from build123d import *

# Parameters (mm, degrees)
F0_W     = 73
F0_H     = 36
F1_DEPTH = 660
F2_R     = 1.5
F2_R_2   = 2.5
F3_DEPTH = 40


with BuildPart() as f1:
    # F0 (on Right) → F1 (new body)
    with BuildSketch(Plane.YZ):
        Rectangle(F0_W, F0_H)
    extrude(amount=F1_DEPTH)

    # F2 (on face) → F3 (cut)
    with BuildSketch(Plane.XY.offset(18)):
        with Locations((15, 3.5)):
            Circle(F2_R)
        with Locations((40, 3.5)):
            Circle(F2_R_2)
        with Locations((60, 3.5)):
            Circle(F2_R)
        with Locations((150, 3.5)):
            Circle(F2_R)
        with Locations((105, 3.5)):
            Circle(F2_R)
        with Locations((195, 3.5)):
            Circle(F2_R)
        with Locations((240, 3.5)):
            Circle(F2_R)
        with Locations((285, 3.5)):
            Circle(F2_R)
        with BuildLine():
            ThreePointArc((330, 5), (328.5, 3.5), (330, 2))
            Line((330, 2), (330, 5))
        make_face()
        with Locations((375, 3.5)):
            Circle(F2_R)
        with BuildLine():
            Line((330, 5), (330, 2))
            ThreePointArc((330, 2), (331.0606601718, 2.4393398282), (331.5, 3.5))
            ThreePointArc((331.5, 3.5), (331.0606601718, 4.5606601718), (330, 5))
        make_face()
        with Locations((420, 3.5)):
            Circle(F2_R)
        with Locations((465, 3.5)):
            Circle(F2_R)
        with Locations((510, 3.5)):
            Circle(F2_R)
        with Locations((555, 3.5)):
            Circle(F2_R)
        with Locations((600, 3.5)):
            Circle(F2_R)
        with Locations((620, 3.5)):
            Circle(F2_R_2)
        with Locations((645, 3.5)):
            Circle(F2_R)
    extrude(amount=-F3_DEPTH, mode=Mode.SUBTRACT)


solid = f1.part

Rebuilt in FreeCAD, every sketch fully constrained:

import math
import FreeCAD as App
import Part
import Sketcher

doc = App.newDocument("Part")
body = doc.addObject("PartDesign::Body", "Body")

sketch1 = doc.addObject("Sketcher::SketchObject", "Sketch")
body.addObject(sketch1)
sketch1.AttachmentSupport = (doc.YZ_Plane, [""])
sketch1.MapMode = "FlatFace"
sketch1.addGeometry([
    Part.LineSegment(App.Vector(-36, 18, 0), App.Vector(-36, -18, 0)),
    Part.LineSegment(App.Vector(-36, -18, 0), App.Vector(36, -18, 0)),
    Part.LineSegment(App.Vector(36, -18, 0), App.Vector(36, 18, 0)),
    Part.LineSegment(App.Vector(36, 18, 0), App.Vector(-36, 18, 0)),
], False)
sketch1.addConstraint([
    Sketcher.Constraint("Coincident", 0, 2, 1, 1),
    Sketcher.Constraint("Coincident", 1, 2, 2, 1),
    Sketcher.Constraint("Coincident", 2, 2, 3, 1),
    Sketcher.Constraint("Coincident", 3, 2, 0, 1),
    Sketcher.Constraint("Vertical", 0),
    Sketcher.Constraint("Horizontal", 1),
    Sketcher.Constraint("Vertical", 2),
    Sketcher.Constraint("Horizontal", 3),
    Sketcher.Constraint("Symmetric", 0, 2, 2, 2, -1, 1),
    Sketcher.Constraint("DistanceX", 1, 1, 1, 2, 73.0),
    Sketcher.Constraint("DistanceY", 0, 2, 0, 1, 36.0),
])
pad1 = doc.addObject("PartDesign::Pad", "Pad")
body.addObject(pad1)
pad1.Profile = sketch1
pad1.Length = 660

sketch2 = doc.addObject("Sketcher::SketchObject", "Sketch001")
body.addObject(sketch2)
sketch2.AttachmentSupport = (doc.XY_Plane, [""])
sketch2.MapMode = "FlatFace"
sketch2.AttachmentOffset = App.Placement(App.Vector(0, 0, 18), App.Rotation())
sketch2.addGeometry([
    Part.Circle(App.Vector(15, 3.5, 0), App.Vector(0, 0, 1), 1.5),
    Part.Circle(App.Vector(40, 3.5, 0), App.Vector(0, 0, 1), 2.5),
    Part.Circle(App.Vector(60, 3.5, 0), App.Vector(0, 0, 1), 1.5),
    Part.Circle(App.Vector(150, 3.5, 0), App.Vector(0, 0, 1), 1.5),
    Part.Circle(App.Vector(105, 3.5, 0), App.Vector(0, 0, 1), 1.5),
    Part.Circle(App.Vector(195, 3.5, 0), App.Vector(0, 0, 1), 1.5),
    Part.Circle(App.Vector(240, 3.5, 0), App.Vector(0, 0, 1), 1.5),
    Part.Circle(App.Vector(285, 3.5, 0), App.Vector(0, 0, 1), 1.5),
    Part.ArcOfCircle(Part.Circle(App.Vector(330, 3.5, 0), App.Vector(0, 0, 1), 1.5), math.radians(90), math.radians(270)),
    Part.ArcOfCircle(Part.Circle(App.Vector(330, 3.5, 0), App.Vector(0, 0, 1), 1.5), math.radians(-90), math.radians(0)),
    Part.ArcOfCircle(Part.Circle(App.Vector(330, 3.5, 0), App.Vector(0, 0, 1), 1.5), math.radians(0), math.radians(90)),
    Part.Circle(App.Vector(375, 3.5, 0), App.Vector(0, 0, 1), 1.5),
    Part.Circle(App.Vector(420, 3.5, 0), App.Vector(0, 0, 1), 1.5),
    Part.Circle(App.Vector(465, 3.5, 0), App.Vector(0, 0, 1), 1.5),
    Part.Circle(App.Vector(510, 3.5, 0), App.Vector(0, 0, 1), 1.5),
    Part.Circle(App.Vector(555, 3.5, 0), App.Vector(0, 0, 1), 1.5),
    Part.Circle(App.Vector(600, 3.5, 0), App.Vector(0, 0, 1), 1.5),
    Part.Circle(App.Vector(620, 3.5, 0), App.Vector(0, 0, 1), 2.5),
    Part.Circle(App.Vector(645, 3.5, 0), App.Vector(0, 0, 1), 1.5),
], False)
sketch2.addConstraint([
    Sketcher.Constraint("Tangent", 8, 2, 9, 1),
    Sketcher.Constraint("Tangent", 9, 2, 10, 1),
    Sketcher.Constraint("Tangent", 10, 2, 8, 1),
    Sketcher.Constraint("Equal", 0, 2),
    Sketcher.Constraint("Equal", 2, 3),
    Sketcher.Constraint("Equal", 3, 4),
    Sketcher.Constraint("Equal", 4, 5),
    Sketcher.Constraint("Equal", 5, 6),
    Sketcher.Constraint("Equal", 6, 7),
    Sketcher.Constraint("Equal", 7, 8),
    Sketcher.Constraint("Equal", 10, 11),
    Sketcher.Constraint("Equal", 11, 12),
    Sketcher.Constraint("Equal", 12, 13),
    Sketcher.Constraint("Equal", 13, 14),
    Sketcher.Constraint("Equal", 14, 15),
    Sketcher.Constraint("Equal", 15, 16),
    Sketcher.Constraint("Equal", 1, 17),
    Sketcher.Constraint("Equal", 16, 18),
    Sketcher.Constraint("Horizontal", 0, 3, 1, 3),
    Sketcher.Constraint("Horizontal", 1, 3, 2, 3),
    Sketcher.Constraint("Horizontal", 2, 3, 3, 3),
    Sketcher.Constraint("Horizontal", 3, 3, 4, 3),
    Sketcher.Constraint("Horizontal", 4, 3, 5, 3),
    Sketcher.Constraint("Horizontal", 5, 3, 6, 3),
    Sketcher.Constraint("Horizontal", 6, 3, 7, 3),
    Sketcher.Constraint("Horizontal", 7, 3, 8, 3),
    Sketcher.Constraint("Horizontal", 10, 3, 11, 3),
    Sketcher.Constraint("Horizontal", 11, 3, 12, 3),
    Sketcher.Constraint("Horizontal", 12, 3, 13, 3),
    Sketcher.Constraint("Horizontal", 13, 3, 14, 3),
    Sketcher.Constraint("Horizontal", 14, 3, 15, 3),
    Sketcher.Constraint("Horizontal", 15, 3, 16, 3),
    Sketcher.Constraint("Horizontal", 16, 3, 17, 3),
    Sketcher.Constraint("Horizontal", 17, 3, 18, 3),
    Sketcher.Constraint("Horizontal", 18, 3, 9, 2),
    Sketcher.Constraint("Vertical", 10, 3, 8, 2),
    Sketcher.Constraint("Vertical", 8, 2, 10, 2),
    Sketcher.Constraint("Diameter", 0, 3.0),
    Sketcher.Constraint("Diameter", 1, 5.0),
    Sketcher.Constraint("DistanceX", -1, 1, 0, 3, 15.0),
    Sketcher.Constraint("DistanceX", -1, 1, 1, 3, 40.0),
    Sketcher.Constraint("DistanceX", -1, 1, 2, 3, 60.0),
    Sketcher.Constraint("DistanceX", -1, 1, 3, 3, 150.0),
    Sketcher.Constraint("DistanceX", -1, 1, 4, 3, 105.0),
    Sketcher.Constraint("DistanceX", -1, 1, 5, 3, 195.0),
    Sketcher.Constraint("DistanceX", -1, 1, 6, 3, 240.0),
    Sketcher.Constraint("DistanceX", -1, 1, 7, 3, 285.0),
    Sketcher.Constraint("DistanceX", -1, 1, 8, 3, 330.0),
    Sketcher.Constraint("DistanceX", -1, 1, 11, 3, 375.0),
    Sketcher.Constraint("DistanceX", -1, 1, 12, 3, 420.0),
    Sketcher.Constraint("DistanceX", -1, 1, 13, 3, 465.0),
    Sketcher.Constraint("DistanceX", -1, 1, 14, 3, 510.0),
    Sketcher.Constraint("DistanceX", -1, 1, 15, 3, 555.0),
    Sketcher.Constraint("DistanceX", -1, 1, 16, 3, 600.0),
    Sketcher.Constraint("DistanceX", -1, 1, 17, 3, 620.0),
    Sketcher.Constraint("DistanceX", -1, 1, 18, 3, 645.0),
    Sketcher.Constraint("DistanceY", -1, 1, 8, 2, 2.0),
])
pocket1 = doc.addObject("PartDesign::Pocket", "Pocket")
body.addObject(pocket1)
pocket1.Profile = sketch2
pocket1.Length = 40

doc.recompute()
